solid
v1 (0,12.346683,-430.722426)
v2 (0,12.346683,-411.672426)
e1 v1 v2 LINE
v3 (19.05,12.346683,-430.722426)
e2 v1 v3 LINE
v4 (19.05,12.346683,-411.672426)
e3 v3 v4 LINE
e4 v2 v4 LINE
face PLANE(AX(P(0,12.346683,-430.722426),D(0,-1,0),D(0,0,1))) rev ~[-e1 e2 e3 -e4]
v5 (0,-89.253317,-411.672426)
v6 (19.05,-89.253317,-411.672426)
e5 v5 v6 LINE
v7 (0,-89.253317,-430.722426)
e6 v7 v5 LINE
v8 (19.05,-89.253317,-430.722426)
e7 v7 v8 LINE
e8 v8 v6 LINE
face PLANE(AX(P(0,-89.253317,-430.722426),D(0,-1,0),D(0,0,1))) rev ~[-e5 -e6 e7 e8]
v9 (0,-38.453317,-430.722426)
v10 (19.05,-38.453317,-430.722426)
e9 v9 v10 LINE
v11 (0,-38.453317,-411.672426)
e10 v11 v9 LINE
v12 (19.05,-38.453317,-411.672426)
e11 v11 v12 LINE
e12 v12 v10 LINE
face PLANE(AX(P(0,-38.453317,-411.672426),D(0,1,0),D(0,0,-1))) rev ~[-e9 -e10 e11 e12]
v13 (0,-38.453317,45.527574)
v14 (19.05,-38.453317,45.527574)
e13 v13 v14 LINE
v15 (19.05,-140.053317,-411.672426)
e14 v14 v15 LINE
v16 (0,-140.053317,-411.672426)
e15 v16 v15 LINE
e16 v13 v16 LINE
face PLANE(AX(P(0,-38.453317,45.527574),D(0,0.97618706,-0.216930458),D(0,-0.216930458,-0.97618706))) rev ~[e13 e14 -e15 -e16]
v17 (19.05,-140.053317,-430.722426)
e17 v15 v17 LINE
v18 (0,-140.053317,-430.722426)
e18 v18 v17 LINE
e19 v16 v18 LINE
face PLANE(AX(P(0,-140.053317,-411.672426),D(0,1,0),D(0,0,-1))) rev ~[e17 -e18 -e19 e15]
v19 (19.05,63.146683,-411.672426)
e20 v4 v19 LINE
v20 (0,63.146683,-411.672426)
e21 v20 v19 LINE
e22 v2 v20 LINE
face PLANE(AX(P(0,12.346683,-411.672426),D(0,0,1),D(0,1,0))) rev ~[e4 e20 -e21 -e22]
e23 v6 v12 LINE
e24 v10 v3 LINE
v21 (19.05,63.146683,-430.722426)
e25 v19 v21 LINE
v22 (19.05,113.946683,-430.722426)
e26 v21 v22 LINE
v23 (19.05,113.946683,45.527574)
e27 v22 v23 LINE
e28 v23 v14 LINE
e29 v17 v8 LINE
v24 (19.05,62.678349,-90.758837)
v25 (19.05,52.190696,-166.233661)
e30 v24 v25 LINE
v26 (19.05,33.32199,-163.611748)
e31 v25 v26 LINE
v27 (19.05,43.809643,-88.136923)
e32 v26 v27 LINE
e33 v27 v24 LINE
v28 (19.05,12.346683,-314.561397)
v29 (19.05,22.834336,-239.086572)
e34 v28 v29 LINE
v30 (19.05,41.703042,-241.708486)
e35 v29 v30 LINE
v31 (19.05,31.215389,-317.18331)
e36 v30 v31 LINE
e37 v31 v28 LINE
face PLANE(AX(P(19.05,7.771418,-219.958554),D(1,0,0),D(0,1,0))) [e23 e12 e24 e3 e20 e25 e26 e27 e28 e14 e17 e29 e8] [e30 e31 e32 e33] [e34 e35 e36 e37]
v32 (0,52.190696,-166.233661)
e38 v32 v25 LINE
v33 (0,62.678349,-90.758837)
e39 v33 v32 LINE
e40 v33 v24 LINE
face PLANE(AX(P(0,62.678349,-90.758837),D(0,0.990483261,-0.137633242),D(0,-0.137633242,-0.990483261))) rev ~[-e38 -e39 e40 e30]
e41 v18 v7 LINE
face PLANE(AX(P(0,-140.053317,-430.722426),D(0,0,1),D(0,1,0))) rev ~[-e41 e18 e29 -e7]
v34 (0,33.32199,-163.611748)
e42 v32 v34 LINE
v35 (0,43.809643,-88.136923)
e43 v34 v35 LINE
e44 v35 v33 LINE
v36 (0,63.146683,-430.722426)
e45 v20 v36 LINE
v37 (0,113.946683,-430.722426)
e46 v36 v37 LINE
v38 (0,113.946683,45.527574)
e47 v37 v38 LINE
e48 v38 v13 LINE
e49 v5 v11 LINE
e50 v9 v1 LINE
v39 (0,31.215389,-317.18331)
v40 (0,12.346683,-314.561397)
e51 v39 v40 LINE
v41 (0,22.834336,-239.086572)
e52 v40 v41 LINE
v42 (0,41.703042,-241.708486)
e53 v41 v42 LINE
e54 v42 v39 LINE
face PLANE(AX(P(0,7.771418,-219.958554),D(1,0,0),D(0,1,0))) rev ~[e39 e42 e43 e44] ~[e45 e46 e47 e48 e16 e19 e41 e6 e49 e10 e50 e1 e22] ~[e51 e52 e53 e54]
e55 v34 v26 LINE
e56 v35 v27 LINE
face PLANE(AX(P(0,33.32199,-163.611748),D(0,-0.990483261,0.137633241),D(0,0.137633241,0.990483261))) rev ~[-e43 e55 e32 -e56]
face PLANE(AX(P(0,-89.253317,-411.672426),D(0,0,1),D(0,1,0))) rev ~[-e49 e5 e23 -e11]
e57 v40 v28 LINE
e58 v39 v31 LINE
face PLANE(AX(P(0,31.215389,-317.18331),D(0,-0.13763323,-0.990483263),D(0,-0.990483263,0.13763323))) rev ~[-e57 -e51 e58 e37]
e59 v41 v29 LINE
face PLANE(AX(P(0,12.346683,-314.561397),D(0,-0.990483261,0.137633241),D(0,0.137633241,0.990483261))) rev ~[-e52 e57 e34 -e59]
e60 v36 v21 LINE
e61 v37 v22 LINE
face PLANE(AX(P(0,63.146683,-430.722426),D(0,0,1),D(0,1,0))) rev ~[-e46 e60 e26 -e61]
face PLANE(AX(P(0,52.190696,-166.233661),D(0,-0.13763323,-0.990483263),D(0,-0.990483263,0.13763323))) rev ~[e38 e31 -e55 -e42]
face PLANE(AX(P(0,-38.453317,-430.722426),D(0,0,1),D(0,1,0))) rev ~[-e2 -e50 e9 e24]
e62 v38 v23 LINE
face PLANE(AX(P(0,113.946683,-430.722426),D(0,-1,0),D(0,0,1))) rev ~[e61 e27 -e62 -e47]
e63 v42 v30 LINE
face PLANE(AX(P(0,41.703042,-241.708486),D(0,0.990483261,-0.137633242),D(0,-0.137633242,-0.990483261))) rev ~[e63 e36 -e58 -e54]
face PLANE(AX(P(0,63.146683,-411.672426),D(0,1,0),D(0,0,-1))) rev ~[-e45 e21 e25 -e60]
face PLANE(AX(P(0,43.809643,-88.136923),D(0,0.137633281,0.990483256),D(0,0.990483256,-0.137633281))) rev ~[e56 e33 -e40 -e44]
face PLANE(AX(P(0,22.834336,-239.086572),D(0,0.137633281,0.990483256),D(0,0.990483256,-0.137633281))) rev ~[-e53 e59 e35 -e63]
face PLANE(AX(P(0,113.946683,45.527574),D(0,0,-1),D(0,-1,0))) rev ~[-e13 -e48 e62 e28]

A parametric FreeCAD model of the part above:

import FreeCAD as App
import Part
import Sketcher
from FreeCAD import Vector
Q = App.Units.Quantity


def add_polygon(sketch, points):
    """Adds a closed chain of lines whose ends are joined by coincident constraints."""
    first, n = sketch.GeometryCount, len(points)
    for a, b in zip(points, points[1:] + points[:1]):
        sketch.addGeometry(Part.LineSegment(App.Vector(*a, 0), App.Vector(*b, 0)), False)
    for i in range(n):
        sketch.addConstraint(Sketcher.Constraint("Coincident", first + i, 2, first + (i + 1) % n, 1))

doc = App.newDocument("Part")
body = doc.addObject("PartDesign::Body", "Body")

sketch1 = body.newObject("Sketcher::SketchObject", "Sketch")
sketch1.AttachmentSupport = (doc.getObject("YZ_Plane"), [""])
sketch1.MapMode = "FlatFace"
add_polygon(sketch1, [(114, 46), (-38, 46), (-140, -412), (-140, -431), (-89, -431), (-89, -412), (-38, -412), (-38, -431), (12, -431), (12, -412), (63, -412), (63, -431), (114, -431)])
add_polygon(sketch1, [(12, -315), (23, -239), (42, -242), (31, -317)])
add_polygon(sketch1, [(33, -164), (44, -88), (63, -91), (52, -166)])
sketch1.addConstraint([
    Sketcher.Constraint("Horizontal", 0),
    Sketcher.Constraint("Vertical", 2),
    Sketcher.Constraint("Horizontal", 3),
    Sketcher.Constraint("Vertical", 4),
    Sketcher.Constraint("Horizontal", 5),
    Sketcher.Constraint("Vertical", 6),
    Sketcher.Constraint("Horizontal", 7),
    Sketcher.Constraint("Vertical", 8),
    Sketcher.Constraint("Horizontal", 9),
    Sketcher.Constraint("Vertical", 10),
    Sketcher.Constraint("Horizontal", 11),
    Sketcher.Constraint("Vertical", 12),
    Sketcher.Constraint("Perpendicular", 13, 14),
    Sketcher.Constraint("Perpendicular", 14, 15),
    Sketcher.Constraint("Perpendicular", 15, 16),
    Sketcher.Constraint("Perpendicular", 16, 17),
    Sketcher.Constraint("Perpendicular", 17, 18),
    Sketcher.Constraint("Perpendicular", 18, 19),
    Sketcher.Constraint("Perpendicular", 19, 20),
    Sketcher.Constraint("Horizontal", 1, 2, 4, 2),
    Sketcher.Constraint("Horizontal", 3, 2, 6, 2),
    Sketcher.Constraint("Horizontal", 5, 2, 8, 2),
    Sketcher.Constraint("Horizontal", 7, 2, 10, 2),
    Sketcher.Constraint("Vertical", 0, 2, 5, 2),
    Sketcher.Constraint("Vertical", 8, 2, 16, 2),
    Sketcher.Constraint("Equal", 3, 5),
    Sketcher.Constraint("Equal", 5, 7),
    Sketcher.Constraint("Equal", 7, 9),
    Sketcher.Constraint("Equal", 9, 11),
    Sketcher.Constraint("Equal", 15, 17),
    Sketcher.Constraint("Equal", 16, 18),
    Sketcher.Constraint("DistanceX", 0, 2, 0, 1, Q("6 in")),
    Sketcher.Constraint("Distance", 13, Q("3 in")),
    Sketcher.Constraint("DistanceY", 1, 2, 0, 2, Q("18 in")),
    Sketcher.Constraint("DistanceY", 2, 2, 2, 1, Q("0.75 in")),
    Sketcher.Constraint("Distance", 14, Q("0.75 in")),
    Sketcher.Constraint("DistanceX", 14, 2, 17, 2, Q("2.106601 mm")),
    Sketcher.Constraint("DistanceY", 13, 2, -1, 1, Q("239.086572 mm")),
    Sketcher.Constraint("DistanceX", -1, 1, 15, 2, Q("31.215389 mm")),
    Sketcher.Constraint("DistanceY", 15, 2, -1, 1, Q("317.18331 mm")),
    Sketcher.Constraint("DistanceY", 19, 2, -1, 1, Q("166.233661 mm")),
    Sketcher.Constraint("DistanceY", 9, 2, 14, 2, Q("169.96394 mm")),
])
pad1 = body.newObject("PartDesign::Pad", "Pad")
pad1.Profile = sketch1
pad1.Length = Q("0.75 in")

sketch2 = body.newObject("Sketcher::SketchObject", "Sketch001")
sketch2.AttachmentSupport = (doc.getObject("YZ_Plane"), [""])
sketch2.MapMode = "FlatFace"
add_polygon(sketch2, [(114, 46), (-38, 46), (-140, -412), (-140, -431), (-89, -431), (-89, -412), (-38, -412), (-38, -431), (12, -431), (12, -412), (63, -412), (63, -431), (114, -431)])
add_polygon(sketch2, [(12, -315), (23, -239), (42, -242), (31, -317)])
add_polygon(sketch2, [(33, -164), (44, -88), (63, -91), (52, -166)])
sketch2.addConstraint([
    Sketcher.Constraint("Horizontal", 0),
    Sketcher.Constraint("Vertical", 2),
    Sketcher.Constraint("Horizontal", 3),
    Sketcher.Constraint("Vertical", 4),
    Sketcher.Constraint("Horizontal", 5),
    Sketcher.Constraint("Vertical", 6),
    Sketcher.Constraint("Horizontal", 7),
    Sketcher.Constraint("Vertical", 8),
    Sketcher.Constraint("Horizontal", 9),
    Sketcher.Constraint("Vertical", 10),
    Sketcher.Constraint("Horizontal", 11),
    Sketcher.Constraint("Vertical", 12),
    Sketcher.Constraint("Perpendicular", 13, 14),
    Sketcher.Constraint("Perpendicular", 14, 15),
    Sketcher.Constraint("Perpendicular", 15, 16),
    Sketcher.Constraint("Perpendicular", 16, 17),
    Sketcher.Constraint("Perpendicular", 17, 18),
    Sketcher.Constraint("Perpendicular", 18, 19),
    Sketcher.Constraint("Perpendicular", 19, 20),
    Sketcher.Constraint("Horizontal", 1, 2, 4, 2),
    Sketcher.Constraint("Horizontal", 3, 2, 6, 2),
    Sketcher.Constraint("Horizontal", 5, 2, 8, 2),
    Sketcher.Constraint("Horizontal", 7, 2, 10, 2),
    Sketcher.Constraint("Vertical", 0, 2, 5, 2),
    Sketcher.Constraint("Vertical", 8, 2, 16, 2),
    Sketcher.Constraint("Equal", 3, 5),
    Sketcher.Constraint("Equal", 5, 7),
    Sketcher.Constraint("Equal", 7, 9),
    Sketcher.Constraint("Equal", 9, 11),
    Sketcher.Constraint("Equal", 15, 17),
    Sketcher.Constraint("Equal", 16, 18),
    Sketcher.Constraint("DistanceX", 0, 2, 0, 1, Q("6 in")),
    Sketcher.Constraint("Distance", 13, Q("3 in")),
    Sketcher.Constraint("DistanceY", 1, 2, 0, 2, Q("18 in")),
    Sketcher.Constraint("DistanceY", 2, 2, 2, 1, Q("0.75 in")),
    Sketcher.Constraint("Distance", 14, Q("0.75 in")),
    Sketcher.Constraint("DistanceX", 14, 2, 17, 2, Q("2.106601 mm")),
    Sketcher.Constraint("DistanceY", 13, 2, -1, 1, Q("239.086572 mm")),
    Sketcher.Constraint("DistanceX", -1, 1, 15, 2, Q("31.215389 mm")),
    Sketcher.Constraint("DistanceY", 15, 2, -1, 1, Q("317.18331 mm")),
    Sketcher.Constraint("DistanceY", 19, 2, -1, 1, Q("166.233661 mm")),
    Sketcher.Constraint("DistanceY", 9, 2, 14, 2, Q("169.96394 mm")),
])
pad2 = body.newObject("PartDesign::Pad", "Pad001")
pad2.Profile = sketch2
pad2.Length = Q("0.75 in")

doc.recompute()
